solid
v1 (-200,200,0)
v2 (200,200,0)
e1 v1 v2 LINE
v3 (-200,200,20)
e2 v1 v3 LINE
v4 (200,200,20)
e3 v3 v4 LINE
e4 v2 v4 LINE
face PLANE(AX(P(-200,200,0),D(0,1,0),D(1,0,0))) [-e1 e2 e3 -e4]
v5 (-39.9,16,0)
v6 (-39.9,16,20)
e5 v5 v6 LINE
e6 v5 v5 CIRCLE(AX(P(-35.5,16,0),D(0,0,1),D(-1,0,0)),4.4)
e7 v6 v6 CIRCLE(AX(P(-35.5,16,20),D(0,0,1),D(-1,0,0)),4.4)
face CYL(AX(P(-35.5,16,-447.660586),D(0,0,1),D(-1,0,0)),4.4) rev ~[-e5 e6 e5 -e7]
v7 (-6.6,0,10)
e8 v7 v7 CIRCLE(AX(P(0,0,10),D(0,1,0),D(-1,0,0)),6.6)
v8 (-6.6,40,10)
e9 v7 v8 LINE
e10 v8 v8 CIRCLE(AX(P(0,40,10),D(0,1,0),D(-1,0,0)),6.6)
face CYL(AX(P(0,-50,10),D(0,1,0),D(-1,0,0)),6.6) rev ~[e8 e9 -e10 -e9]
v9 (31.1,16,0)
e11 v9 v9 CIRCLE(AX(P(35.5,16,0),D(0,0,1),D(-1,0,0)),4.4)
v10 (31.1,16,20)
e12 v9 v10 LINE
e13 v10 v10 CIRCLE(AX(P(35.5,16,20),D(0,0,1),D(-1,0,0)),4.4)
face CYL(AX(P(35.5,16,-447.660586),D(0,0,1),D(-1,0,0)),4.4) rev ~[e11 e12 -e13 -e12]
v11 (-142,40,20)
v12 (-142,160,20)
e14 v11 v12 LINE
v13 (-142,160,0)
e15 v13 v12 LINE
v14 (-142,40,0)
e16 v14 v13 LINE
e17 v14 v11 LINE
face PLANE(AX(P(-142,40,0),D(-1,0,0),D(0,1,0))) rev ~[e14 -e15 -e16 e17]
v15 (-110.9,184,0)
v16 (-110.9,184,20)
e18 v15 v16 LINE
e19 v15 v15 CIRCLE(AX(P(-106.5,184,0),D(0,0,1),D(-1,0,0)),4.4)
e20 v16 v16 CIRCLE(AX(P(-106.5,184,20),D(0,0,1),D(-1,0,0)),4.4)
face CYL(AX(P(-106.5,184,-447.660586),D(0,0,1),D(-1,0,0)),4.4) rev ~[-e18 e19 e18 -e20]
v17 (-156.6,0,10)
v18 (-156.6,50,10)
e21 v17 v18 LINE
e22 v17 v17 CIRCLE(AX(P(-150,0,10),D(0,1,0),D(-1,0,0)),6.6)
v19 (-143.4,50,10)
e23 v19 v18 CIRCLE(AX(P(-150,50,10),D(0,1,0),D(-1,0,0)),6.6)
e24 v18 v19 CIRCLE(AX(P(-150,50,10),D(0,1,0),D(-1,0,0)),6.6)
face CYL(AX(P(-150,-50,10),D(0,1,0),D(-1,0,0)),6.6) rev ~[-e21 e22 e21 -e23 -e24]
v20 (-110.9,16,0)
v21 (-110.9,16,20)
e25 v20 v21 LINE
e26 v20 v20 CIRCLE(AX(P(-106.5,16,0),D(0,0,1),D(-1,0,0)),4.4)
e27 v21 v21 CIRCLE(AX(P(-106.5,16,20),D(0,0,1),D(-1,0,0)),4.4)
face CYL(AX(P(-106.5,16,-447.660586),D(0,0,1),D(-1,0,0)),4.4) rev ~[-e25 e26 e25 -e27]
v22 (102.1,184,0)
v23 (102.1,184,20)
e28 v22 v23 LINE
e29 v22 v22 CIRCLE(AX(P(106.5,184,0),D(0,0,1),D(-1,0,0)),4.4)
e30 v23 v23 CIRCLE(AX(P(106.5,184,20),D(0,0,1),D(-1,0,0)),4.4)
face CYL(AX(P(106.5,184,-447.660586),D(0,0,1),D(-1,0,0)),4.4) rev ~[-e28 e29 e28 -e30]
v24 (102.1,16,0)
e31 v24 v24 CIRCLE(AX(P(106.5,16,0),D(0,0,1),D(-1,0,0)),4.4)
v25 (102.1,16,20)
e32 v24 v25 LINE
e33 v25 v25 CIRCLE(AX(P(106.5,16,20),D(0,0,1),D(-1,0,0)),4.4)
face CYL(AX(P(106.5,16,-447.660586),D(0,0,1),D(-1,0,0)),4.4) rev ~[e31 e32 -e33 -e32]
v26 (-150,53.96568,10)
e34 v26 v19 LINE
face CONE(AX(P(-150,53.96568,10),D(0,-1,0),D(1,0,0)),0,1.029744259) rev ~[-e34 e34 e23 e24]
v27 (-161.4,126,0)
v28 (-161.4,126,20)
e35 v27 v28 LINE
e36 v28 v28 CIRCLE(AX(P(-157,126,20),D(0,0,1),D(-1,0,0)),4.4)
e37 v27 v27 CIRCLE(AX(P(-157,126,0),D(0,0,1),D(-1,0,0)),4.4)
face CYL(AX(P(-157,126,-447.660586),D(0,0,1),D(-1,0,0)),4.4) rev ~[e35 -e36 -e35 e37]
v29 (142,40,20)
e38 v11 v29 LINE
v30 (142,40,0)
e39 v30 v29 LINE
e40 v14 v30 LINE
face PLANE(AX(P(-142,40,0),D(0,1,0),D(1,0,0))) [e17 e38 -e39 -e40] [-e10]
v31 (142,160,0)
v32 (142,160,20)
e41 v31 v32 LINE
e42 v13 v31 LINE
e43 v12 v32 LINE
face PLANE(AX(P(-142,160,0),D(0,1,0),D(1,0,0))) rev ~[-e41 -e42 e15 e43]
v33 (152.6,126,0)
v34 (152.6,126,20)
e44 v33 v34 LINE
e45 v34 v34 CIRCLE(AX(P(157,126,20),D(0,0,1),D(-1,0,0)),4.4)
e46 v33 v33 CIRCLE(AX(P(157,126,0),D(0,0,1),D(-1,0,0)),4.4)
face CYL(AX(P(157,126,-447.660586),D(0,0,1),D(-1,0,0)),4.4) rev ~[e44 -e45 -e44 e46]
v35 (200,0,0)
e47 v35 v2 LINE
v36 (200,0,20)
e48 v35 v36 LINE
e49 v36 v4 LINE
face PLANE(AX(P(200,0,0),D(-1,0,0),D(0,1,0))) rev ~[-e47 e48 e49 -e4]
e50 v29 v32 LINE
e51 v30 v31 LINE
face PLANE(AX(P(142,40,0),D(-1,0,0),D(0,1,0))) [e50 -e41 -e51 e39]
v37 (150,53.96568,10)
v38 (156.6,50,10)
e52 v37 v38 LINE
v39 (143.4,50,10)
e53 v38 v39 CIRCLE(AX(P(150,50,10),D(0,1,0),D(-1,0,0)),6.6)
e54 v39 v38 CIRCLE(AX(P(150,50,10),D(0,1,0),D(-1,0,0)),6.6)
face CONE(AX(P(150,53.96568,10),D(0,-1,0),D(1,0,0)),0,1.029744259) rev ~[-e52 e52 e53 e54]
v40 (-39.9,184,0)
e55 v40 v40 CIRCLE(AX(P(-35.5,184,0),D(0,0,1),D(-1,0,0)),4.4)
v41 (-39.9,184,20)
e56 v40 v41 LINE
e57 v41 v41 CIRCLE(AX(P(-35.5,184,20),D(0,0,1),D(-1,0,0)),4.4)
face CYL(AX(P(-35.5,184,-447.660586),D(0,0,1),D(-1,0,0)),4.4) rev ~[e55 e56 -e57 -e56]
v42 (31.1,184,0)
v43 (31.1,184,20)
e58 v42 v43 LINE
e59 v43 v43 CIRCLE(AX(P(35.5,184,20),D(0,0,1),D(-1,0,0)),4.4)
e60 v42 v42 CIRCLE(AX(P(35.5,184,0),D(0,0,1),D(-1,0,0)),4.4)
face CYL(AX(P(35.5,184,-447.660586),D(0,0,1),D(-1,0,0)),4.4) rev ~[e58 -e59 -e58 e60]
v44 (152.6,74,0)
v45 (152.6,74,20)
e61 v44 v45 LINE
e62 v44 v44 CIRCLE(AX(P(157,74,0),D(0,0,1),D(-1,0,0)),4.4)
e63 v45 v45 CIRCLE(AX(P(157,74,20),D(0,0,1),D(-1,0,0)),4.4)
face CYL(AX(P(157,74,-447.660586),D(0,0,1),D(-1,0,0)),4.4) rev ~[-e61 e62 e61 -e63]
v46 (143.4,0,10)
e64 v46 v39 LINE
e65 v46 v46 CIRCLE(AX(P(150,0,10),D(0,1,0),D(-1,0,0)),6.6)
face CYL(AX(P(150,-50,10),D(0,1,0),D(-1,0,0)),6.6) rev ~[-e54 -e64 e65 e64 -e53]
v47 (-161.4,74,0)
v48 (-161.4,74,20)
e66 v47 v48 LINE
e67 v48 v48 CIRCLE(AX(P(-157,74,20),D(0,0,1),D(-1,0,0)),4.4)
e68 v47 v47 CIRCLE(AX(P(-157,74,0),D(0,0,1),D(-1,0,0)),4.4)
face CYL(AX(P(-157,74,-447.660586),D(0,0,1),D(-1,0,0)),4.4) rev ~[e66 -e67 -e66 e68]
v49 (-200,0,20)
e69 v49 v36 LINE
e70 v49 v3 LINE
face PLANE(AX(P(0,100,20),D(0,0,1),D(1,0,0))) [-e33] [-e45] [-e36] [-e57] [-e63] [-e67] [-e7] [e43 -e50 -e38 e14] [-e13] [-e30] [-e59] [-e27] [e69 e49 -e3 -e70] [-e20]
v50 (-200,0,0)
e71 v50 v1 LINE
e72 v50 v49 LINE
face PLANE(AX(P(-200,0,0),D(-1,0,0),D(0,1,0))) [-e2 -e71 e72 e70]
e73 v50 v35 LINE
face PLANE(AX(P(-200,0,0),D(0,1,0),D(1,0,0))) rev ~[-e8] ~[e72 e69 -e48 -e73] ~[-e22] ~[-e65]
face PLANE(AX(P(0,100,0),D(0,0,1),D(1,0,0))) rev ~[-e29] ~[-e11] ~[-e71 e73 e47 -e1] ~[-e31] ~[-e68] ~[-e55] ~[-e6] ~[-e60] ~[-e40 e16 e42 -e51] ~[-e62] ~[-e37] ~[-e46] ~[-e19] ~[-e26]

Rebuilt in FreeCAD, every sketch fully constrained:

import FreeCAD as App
import Part
import Sketcher

V = App.Vector
Q = App.Units.Quantity

doc = App.newDocument("Part")
body = doc.addObject("PartDesign::Body", "Body")

# Sketch on XY plane
sketch1 = doc.addObject("Sketcher::SketchObject", "Sketch")
body.addObject(sketch1)
sketch1.AttachmentSupport = (doc.XY_Plane, [""])
sketch1.MapMode = "FlatFace"
sketch1.addGeometry(Part.LineSegment(V(-200, 200, 0), V(-200, 0, 0)), False)
sketch1.addGeometry(Part.LineSegment(V(-200, 0, 0), V(200, 0, 0)), False)
sketch1.addGeometry(Part.LineSegment(V(200, 0, 0), V(200, 200, 0)), False)
sketch1.addGeometry(Part.LineSegment(V(200, 200, 0), V(-200, 200, 0)), False)
sketch1.addGeometry(Part.LineSegment(V(142, 40, 0), V(-142, 40, 0)), False)
sketch1.addGeometry(Part.LineSegment(V(-142, 40, 0), V(-142, 160, 0)), False)
sketch1.addGeometry(Part.LineSegment(V(-142, 160, 0), V(142, 160, 0)), False)
sketch1.addGeometry(Part.LineSegment(V(142, 160, 0), V(142, 40, 0)), False)
sketch1.addConstraint(Sketcher.Constraint("Coincident", 0, 2, 1, 1))
sketch1.addConstraint(Sketcher.Constraint("Coincident", 1, 2, 2, 1))
sketch1.addConstraint(Sketcher.Constraint("Coincident", 2, 2, 3, 1))
sketch1.addConstraint(Sketcher.Constraint("Coincident", 3, 2, 0, 1))
sketch1.addConstraint(Sketcher.Constraint("Coincident", 4, 2, 5, 1))
sketch1.addConstraint(Sketcher.Constraint("Coincident", 5, 2, 6, 1))
sketch1.addConstraint(Sketcher.Constraint("Coincident", 6, 2, 7, 1))
sketch1.addConstraint(Sketcher.Constraint("Coincident", 7, 2, 4, 1))
sketch1.addConstraint(Sketcher.Constraint("Vertical", 0))
sketch1.addConstraint(Sketcher.Constraint("Horizontal", 1))
sketch1.addConstraint(Sketcher.Constraint("Vertical", 2))
sketch1.addConstraint(Sketcher.Constraint("Horizontal", 3))
sketch1.addConstraint(Sketcher.Constraint("Horizontal", 4))
sketch1.addConstraint(Sketcher.Constraint("Vertical", 5))
sketch1.addConstraint(Sketcher.Constraint("Horizontal", 6))
sketch1.addConstraint(Sketcher.Constraint("Vertical", 7))
sketch1.addConstraint(Sketcher.Constraint("Symmetric", 0, 2, 1, 2, -1, 1))
sketch1.addConstraint(Sketcher.Constraint("DistanceX", 1, 1, 1, 2, Q("400 mm")))
sketch1.addConstraint(Sketcher.Constraint("DistanceX", 4, 2, 4, 1, Q("284 mm")))
sketch1.addConstraint(Sketcher.Constraint("DistanceY", 0, 2, 0, 1, Q("200 mm")))
sketch1.addConstraint(Sketcher.Constraint("DistanceY", 5, 1, 5, 2, Q("120 mm")))
sketch1.addConstraint(Sketcher.Constraint("DistanceX", 4, 2, -1, 1, Q("142 mm")))
sketch1.addConstraint(Sketcher.Constraint("DistanceY", -1, 1, 4, 2, Q("40 mm")))
pad1 = doc.addObject("PartDesign::Pad", "Pad")
body.addObject(pad1)
pad1.Profile = sketch1
pad1.Length = 20

# Sketch on XY plane
sketch2 = doc.addObject("Sketcher::SketchObject", "Sketch001")
body.addObject(sketch2)
sketch2.AttachmentSupport = (doc.XY_Plane, [""])
sketch2.MapMode = "FlatFace"
sketch2.addGeometry(Part.Circle(V(-157, 126, 0), V(0, 0, 1), 4.4), False)
sketch2.addGeometry(Part.Circle(V(-157, 74, 0), V(0, 0, 1), 4.4), False)
sketch2.addGeometry(Part.Circle(V(-106.5, 16, 0), V(0, 0, 1), 4.4), False)
sketch2.addGeometry(Part.Circle(V(-35.5, 16, 0), V(0, 0, 1), 4.4), False)
sketch2.addGeometry(Part.Circle(V(35.5, 16, 0), V(0, 0, 1), 4.4), False)
sketch2.addGeometry(Part.Circle(V(106.5, 16, 0), V(0, 0, 1), 4.4), False)
sketch2.addGeometry(Part.Circle(V(157, 74, 0), V(0, 0, 1), 4.4), False)
sketch2.addGeometry(Part.Circle(V(157, 126, 0), V(0, 0, 1), 4.4), False)
sketch2.addGeometry(Part.Circle(V(106.5, 184, 0), V(0, 0, 1), 4.4), False)
sketch2.addGeometry(Part.Circle(V(35.5, 184, 0), V(0, 0, 1), 4.4), False)
sketch2.addGeometry(Part.Circle(V(-35.5, 184, 0), V(0, 0, 1), 4.4), False)
sketch2.addGeometry(Part.Circle(V(-106.5, 184, 0), V(0, 0, 1), 4.4), False)
sketch2.addConstraint(Sketcher.Constraint("Equal", 0, 1))
sketch2.addConstraint(Sketcher.Constraint("Equal", 1, 2))
sketch2.addConstraint(Sketcher.Constraint("Equal", 2, 3))
sketch2.addConstraint(Sketcher.Constraint("Equal", 3, 4))
sketch2.addConstraint(Sketcher.Constraint("Equal", 4, 5))
sketch2.addConstraint(Sketcher.Constraint("Equal", 5, 6))
sketch2.addConstraint(Sketcher.Constraint("Equal", 6, 7))
sketch2.addConstraint(Sketcher.Constraint("Equal", 7, 8))
sketch2.addConstraint(Sketcher.Constraint("Equal", 8, 9))
sketch2.addConstraint(Sketcher.Constraint("Equal", 9, 10))
sketch2.addConstraint(Sketcher.Constraint("Equal", 10, 11))
sketch2.addConstraint(Sketcher.Constraint("Symmetric", 3, 3, 4, 3, -2))
sketch2.addConstraint(Sketcher.Constraint("Symmetric", 2, 3, 5, 3, -2))
sketch2.addConstraint(Sketcher.Constraint("Symmetric", 1, 3, 6, 3, -2))
sketch2.addConstraint(Sketcher.Constraint("Symmetric", 0, 3, 7, 3, -2))
sketch2.addConstraint(Sketcher.Constraint("Symmetric", 9, 3, 10, 3, -2))
sketch2.addConstraint(Sketcher.Constraint("Symmetric", 8, 3, 11, 3, -2))
sketch2.addConstraint(Sketcher.Constraint("Horizontal", 2, 3, 3, 3))
sketch2.addConstraint(Sketcher.Constraint("Horizontal", 8, 3, 9, 3))
sketch2.addConstraint(Sketcher.Constraint("Vertical", 0, 3, 1, 3))
sketch2.addConstraint(Sketcher.Constraint("Vertical", 5, 3, 8, 3))
sketch2.addConstraint(Sketcher.Constraint("Vertical", 4, 3, 9, 3))
sketch2.addConstraint(Sketcher.Constraint("Diameter", 0, Q("8.8 mm")))
sketch2.addConstraint(Sketcher.Constraint("DistanceX", 0, 3, -1, 1, Q("157 mm")))
sketch2.addConstraint(Sketcher.Constraint("DistanceY", -1, 1, 0, 3, Q("126 mm")))
sketch2.addConstraint(Sketcher.Constraint("DistanceY", -1, 1, 1, 3, Q("74 mm")))
sketch2.addConstraint(Sketcher.Constraint("DistanceY", -1, 1, 2, 3, Q("16 mm")))
sketch2.addConstraint(Sketcher.Constraint("DistanceY", -1, 1, 8, 3, Q("184 mm")))
sketch2.addConstraint(Sketcher.Constraint("DistanceX", 2, 3, 3, 3, Q("71 mm")))
sketch2.addConstraint(Sketcher.Constraint("DistanceX", 3, 3, 4, 3, Q("71 mm")))
doc.recompute()
hole = doc.addObject("PartDesign::Hole", "Hole")
body.addObject(hole)
hole.Profile = sketch2
hole.ThreadType = "None"
hole.Diameter = 8.8
hole.DepthType = "ThroughAll"
hole.Reversed = True

# Sketch on XZ plane
sketch3 = doc.addObject("Sketcher::SketchObject", "Sketch002")
body.addObject(sketch3)
sketch3.AttachmentSupport = (doc.XZ_Plane, [""])
sketch3.MapMode = "FlatFace"
sketch3.addGeometry(Part.Circle(V(-150, 10, 0), V(0, 0, 1), 7), False)
sketch3.addGeometry(Part.Circle(V(150, 10, 0), V(0, 0, 1), 7), False)
sketch3.addGeometry(Part.Circle(V(0, 10, 0), V(0, 0, 1), 7), False)
sketch3.addConstraint(Sketcher.Constraint("Equal", 0, 1))
sketch3.addConstraint(Sketcher.Constraint("Equal", 1, 2))
sketch3.addConstraint(Sketcher.Constraint("Symmetric", 0, 3, 1, 3, -2))
sketch3.addConstraint(Sketcher.Constraint("PointOnObject", 2, 3, -2))
sketch3.addConstraint(Sketcher.Constraint("Horizontal", 1, 3, 2, 3))
sketch3.addConstraint(Sketcher.Constraint("Diameter", 0, Q("13.2 mm")))
sketch3.addConstraint(Sketcher.Constraint("DistanceX", 0, 3, -1, 1, Q("150 mm")))
sketch3.addConstraint(Sketcher.Constraint("DistanceY", -1, 1, 0, 3, Q("10 mm")))
doc.recompute()
hole2 = doc.addObject("PartDesign::Hole", "Hole001")
body.addObject(hole2)
hole2.Profile = sketch3
hole2.ThreadType = "None"
hole2.Diameter = 13.2
hole2.DepthType = "Dimension"
hole2.Depth = 50
hole2.DrillPoint = "Angled"
hole2.DrillPointAngle = 118

doc.recompute()
